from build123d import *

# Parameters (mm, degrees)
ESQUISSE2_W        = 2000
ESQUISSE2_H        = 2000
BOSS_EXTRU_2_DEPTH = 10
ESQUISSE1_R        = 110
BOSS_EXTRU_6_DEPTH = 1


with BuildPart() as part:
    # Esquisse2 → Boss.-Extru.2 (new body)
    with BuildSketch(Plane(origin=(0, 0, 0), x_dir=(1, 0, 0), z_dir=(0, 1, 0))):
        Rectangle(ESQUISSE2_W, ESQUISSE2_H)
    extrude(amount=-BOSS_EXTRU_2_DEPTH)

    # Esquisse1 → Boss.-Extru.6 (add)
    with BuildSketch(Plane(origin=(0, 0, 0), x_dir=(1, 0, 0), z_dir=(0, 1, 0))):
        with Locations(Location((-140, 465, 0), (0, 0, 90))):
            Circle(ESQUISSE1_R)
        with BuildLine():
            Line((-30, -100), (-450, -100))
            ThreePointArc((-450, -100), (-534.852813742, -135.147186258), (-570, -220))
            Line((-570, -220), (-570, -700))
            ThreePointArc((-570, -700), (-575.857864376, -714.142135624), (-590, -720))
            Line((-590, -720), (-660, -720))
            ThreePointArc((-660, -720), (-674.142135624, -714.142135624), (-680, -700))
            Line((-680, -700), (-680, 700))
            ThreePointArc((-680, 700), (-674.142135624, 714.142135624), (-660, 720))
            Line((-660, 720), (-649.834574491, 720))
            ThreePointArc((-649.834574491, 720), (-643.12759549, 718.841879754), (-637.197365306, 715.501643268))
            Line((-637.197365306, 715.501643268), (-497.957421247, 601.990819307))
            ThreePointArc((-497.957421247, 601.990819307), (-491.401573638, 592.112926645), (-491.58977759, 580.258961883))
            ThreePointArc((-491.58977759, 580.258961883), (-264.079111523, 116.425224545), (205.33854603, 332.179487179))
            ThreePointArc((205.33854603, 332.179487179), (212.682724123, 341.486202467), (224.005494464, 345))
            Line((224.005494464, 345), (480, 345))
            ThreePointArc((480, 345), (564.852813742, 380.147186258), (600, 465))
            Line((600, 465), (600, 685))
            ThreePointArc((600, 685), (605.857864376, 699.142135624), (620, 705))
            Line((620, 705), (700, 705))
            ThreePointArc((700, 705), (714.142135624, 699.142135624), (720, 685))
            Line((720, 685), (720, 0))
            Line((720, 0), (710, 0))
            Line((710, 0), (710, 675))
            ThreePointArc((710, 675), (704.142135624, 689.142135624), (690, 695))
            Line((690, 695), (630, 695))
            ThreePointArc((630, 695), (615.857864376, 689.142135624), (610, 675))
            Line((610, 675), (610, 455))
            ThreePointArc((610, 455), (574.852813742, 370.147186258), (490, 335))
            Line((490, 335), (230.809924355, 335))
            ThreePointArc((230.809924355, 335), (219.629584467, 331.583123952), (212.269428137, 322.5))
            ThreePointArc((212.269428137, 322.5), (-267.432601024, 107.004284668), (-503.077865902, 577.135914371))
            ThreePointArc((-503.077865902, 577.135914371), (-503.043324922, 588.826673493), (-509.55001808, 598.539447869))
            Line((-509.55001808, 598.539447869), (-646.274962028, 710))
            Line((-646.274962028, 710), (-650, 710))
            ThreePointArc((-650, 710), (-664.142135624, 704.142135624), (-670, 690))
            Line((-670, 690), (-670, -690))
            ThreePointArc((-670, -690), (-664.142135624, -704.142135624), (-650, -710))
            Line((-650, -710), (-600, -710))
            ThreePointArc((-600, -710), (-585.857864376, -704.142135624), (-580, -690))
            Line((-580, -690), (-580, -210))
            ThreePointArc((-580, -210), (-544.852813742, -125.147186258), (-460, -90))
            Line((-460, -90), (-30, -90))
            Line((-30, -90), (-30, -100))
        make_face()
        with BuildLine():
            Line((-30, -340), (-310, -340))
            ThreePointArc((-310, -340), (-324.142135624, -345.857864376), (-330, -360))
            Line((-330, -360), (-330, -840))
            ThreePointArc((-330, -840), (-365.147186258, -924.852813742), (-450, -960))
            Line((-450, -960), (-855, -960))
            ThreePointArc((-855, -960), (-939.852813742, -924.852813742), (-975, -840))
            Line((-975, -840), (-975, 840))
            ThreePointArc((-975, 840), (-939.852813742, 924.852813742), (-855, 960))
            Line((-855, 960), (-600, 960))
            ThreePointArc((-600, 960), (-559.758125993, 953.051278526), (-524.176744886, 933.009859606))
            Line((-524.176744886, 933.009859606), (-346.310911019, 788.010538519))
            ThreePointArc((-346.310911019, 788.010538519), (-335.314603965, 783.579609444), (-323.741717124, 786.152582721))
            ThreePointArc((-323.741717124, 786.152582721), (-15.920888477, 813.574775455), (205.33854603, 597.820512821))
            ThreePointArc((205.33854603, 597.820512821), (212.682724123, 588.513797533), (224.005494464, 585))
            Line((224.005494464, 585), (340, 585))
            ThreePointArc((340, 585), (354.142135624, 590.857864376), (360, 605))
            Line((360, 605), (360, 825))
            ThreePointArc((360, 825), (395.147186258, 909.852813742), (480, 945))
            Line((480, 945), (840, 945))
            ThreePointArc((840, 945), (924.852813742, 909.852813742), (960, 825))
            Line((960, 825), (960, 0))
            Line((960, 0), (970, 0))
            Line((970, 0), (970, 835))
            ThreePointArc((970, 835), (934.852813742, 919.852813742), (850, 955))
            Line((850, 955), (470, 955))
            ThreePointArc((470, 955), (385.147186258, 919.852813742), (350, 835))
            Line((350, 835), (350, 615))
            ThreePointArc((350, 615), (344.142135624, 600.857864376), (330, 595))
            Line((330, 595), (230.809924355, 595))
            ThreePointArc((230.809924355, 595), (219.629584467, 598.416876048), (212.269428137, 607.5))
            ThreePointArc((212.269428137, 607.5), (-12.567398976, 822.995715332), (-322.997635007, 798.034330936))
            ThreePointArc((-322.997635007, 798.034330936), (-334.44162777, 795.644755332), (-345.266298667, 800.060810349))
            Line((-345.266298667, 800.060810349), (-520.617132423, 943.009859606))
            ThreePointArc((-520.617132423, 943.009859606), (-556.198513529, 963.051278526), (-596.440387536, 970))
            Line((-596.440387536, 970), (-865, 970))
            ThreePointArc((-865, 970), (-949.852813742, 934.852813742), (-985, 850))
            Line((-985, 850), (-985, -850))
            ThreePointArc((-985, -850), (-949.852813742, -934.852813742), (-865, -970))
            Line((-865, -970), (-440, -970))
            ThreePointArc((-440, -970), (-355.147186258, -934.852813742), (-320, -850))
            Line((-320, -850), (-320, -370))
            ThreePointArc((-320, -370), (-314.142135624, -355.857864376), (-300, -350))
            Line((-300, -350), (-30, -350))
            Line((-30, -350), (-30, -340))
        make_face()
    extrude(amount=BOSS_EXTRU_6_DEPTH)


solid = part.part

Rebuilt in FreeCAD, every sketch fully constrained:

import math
import FreeCAD as App
import Part
import Sketcher
from FreeCAD import Vector

doc = App.newDocument("Part")
params = doc.addObject("Spreadsheet::Sheet", "Params")
for row, (alias, value) in enumerate([
    ("sketch1_width", "2000 mm"),
    ("pad1_length", "10 mm"),
    ("sketch2_diameter", "220 mm"),
    ("sketch2_radius", "120 mm"),
    ("sketch2_radius2", "20 mm"),
    ("sketch2_radius3", "380 mm"),
    ("sketch2_radius4", "370 mm"),
    ("pad2_length", "1 mm"),
], start=1):
    params.set(f"A{row}", alias)
    params.set(f"B{row}", "=" + value)
    params.setAlias(f"B{row}", alias)

body = doc.addObject("PartDesign::Body", "Body")

# Sketch on XZ plane
sketch1 = doc.addObject("Sketcher::SketchObject", "Sketch")
body.addObject(sketch1)
sketch1.AttachmentSupport = (doc.XZ_Plane, [""])
sketch1.MapMode = "FlatFace"
sketch1.addGeometry(Part.LineSegment(Vector(-1000, -1000, 0), Vector(-1000, 1000, 0)), False)
sketch1.addGeometry(Part.LineSegment(Vector(-1000, 1000, 0), Vector(1000, 1000, 0)), False)
sketch1.addGeometry(Part.LineSegment(Vector(1000, 1000, 0), Vector(1000, -1000, 0)), False)
sketch1.addGeometry(Part.LineSegment(Vector(1000, -1000, 0), Vector(-1000, -1000, 0)), False)
sketch1.addConstraint(Sketcher.Constraint("Coincident", 0, 2, 1, 1))
sketch1.addConstraint(Sketcher.Constraint("Coincident", 1, 2, 2, 1))
sketch1.addConstraint(Sketcher.Constraint("Coincident", 2, 2, 3, 1))
sketch1.addConstraint(Sketcher.Constraint("Coincident", 3, 2, 0, 1))
sketch1.addConstraint(Sketcher.Constraint("Vertical", 0))
sketch1.addConstraint(Sketcher.Constraint("Horizontal", 1))
sketch1.addConstraint(Sketcher.Constraint("Vertical", 2))
sketch1.addConstraint(Sketcher.Constraint("Horizontal", 3))
sketch1.addConstraint(Sketcher.Constraint("Symmetric", 0, 2, 2, 2, -1, 1))
sketch1.addConstraint(Sketcher.Constraint("Equal", 3, 0))
sketch1.addConstraint(Sketcher.Constraint("DistanceX", 1, 1, 1, 2, 2000.0))
sketch1.setExpression("Constraints[10]", "Params.sketch1_width")
pad1 = doc.addObject("PartDesign::Pad", "Pad")
body.addObject(pad1)
pad1.Profile = sketch1
pad1.setExpression("Length", "Params.pad1_length")

# Sketch on XZ plane
sketch2 = doc.addObject("Sketcher::SketchObject", "Sketch001")
body.addObject(sketch2)
sketch2.AttachmentSupport = (doc.XZ_Plane, [""])
sketch2.MapMode = "FlatFace"
sketch2.addGeometry(Part.Circle(Vector(-140, -465, 0), Vector(0, 0, 1), 110), False)
sketch2.addGeometry(Part.LineSegment(Vector(-450, 100, 0), Vector(-30, 100, 0)), False)
sketch2.addGeometry(Part.LineSegment(Vector(-30, 100, 0), Vector(-30, 90, 0)), False)
sketch2.addGeometry(Part.LineSegment(Vector(-30, 90, 0), Vector(-460, 90, 0)), False)
sketch2.addGeometry(Part.ArcOfCircle(Part.Circle(Vector(-460, 210, 0), Vector(0, 0, 1), 120), math.radians(-180), math.radians(-90)), False)
sketch2.addGeometry(Part.LineSegment(Vector(-580, 210, 0), Vector(-580, 690, 0)), False)
sketch2.addGeometry(Part.ArcOfCircle(Part.Circle(Vector(-600, 690, 0), Vector(0, 0, 1), 20), math.radians(0), math.radians(90)), False)
sketch2.addGeometry(Part.LineSegment(Vector(-600, 710, 0), Vector(-650, 710, 0)), False)
sketch2.addGeometry(Part.ArcOfCircle(Part.Circle(Vector(-650, 690, 0), Vector(0, 0, 1), 20), math.radians(90), math.radians(180)), False)
sketch2.addGeometry(Part.LineSegment(Vector(-670, 690, 0), Vector(-670, -690, 0)), False)
sketch2.addGeometry(Part.ArcOfCircle(Part.Circle(Vector(-650, -690, 0), Vector(0, 0, 1), 20), math.radians(180), math.radians(270)), False)
sketch2.addGeometry(Part.LineSegment(Vector(-650, -710, 0), Vector(-646.3, -710, 0)), False)
sketch2.addGeometry(Part.LineSegment(Vector(-646.3, -710, 0), Vector(-509.6, -598.5, 0)), False)
sketch2.addGeometry(Part.ArcOfCircle(Part.Circle(Vector(-522.2, -583, 0), Vector(0, 0, 1), 20), math.radians(-51), math.radians(17)), False)
sketch2.addGeometry(Part.ArcOfCircle(Part.Circle(Vector(-140, -465, 0), Vector(0, 0, 1), 380), math.radians(22), math.radians(197)), False)
sketch2.addGeometry(Part.ArcOfCircle(Part.Circle(Vector(230.8, -315, 0), Vector(0, 0, 1), 20), math.radians(-158), math.radians(-90)), False)
sketch2.addGeometry(Part.LineSegment(Vector(230.8, -335, 0), Vector(490, -335, 0)), False)
sketch2.addGeometry(Part.ArcOfCircle(Part.Circle(Vector(490, -455, 0), Vector(0, 0, 1), 120), math.radians(0), math.radians(90)), False)
sketch2.addGeometry(Part.LineSegment(Vector(610, -455, 0), Vector(610, -675, 0)), False)
sketch2.addGeometry(Part.ArcOfCircle(Part.Circle(Vector(630, -675, 0), Vector(0, 0, 1), 20), math.radians(180), math.radians(270)), False)
sketch2.addGeometry(Part.LineSegment(Vector(630, -695, 0), Vector(690, -695, 0)), False)
sketch2.addGeometry(Part.ArcOfCircle(Part.Circle(Vector(690, -675, 0), Vector(0, 0, 1), 20), math.radians(-90), math.radians(0)), False)
sketch2.addGeometry(Part.LineSegment(Vector(710, -675, 0), Vector(710, 0, 0)), False)
sketch2.addGeometry(Part.LineSegment(Vector(710, 0, 0), Vector(720, 0, 0)), False)
sketch2.addGeometry(Part.LineSegment(Vector(720, 0, 0), Vector(720, -685, 0)), False)
sketch2.addGeometry(Part.ArcOfCircle(Part.Circle(Vector(700, -685, 0), Vector(0, 0, 1), 20), math.radians(-90), math.radians(0)), False)
sketch2.addGeometry(Part.LineSegment(Vector(700, -705, 0), Vector(620, -705, 0)), False)
sketch2.addGeometry(Part.ArcOfCircle(Part.Circle(Vector(620, -685, 0), Vector(0, 0, 1), 20), math.radians(180), math.radians(270)), False)
sketch2.addGeometry(Part.LineSegment(Vector(600, -685, 0), Vector(600, -465, 0)), False)
sketch2.addGeometry(Part.ArcOfCircle(Part.Circle(Vector(480, -465, 0), Vector(0, 0, 1), 120), math.radians(0), math.radians(90)), False)
sketch2.addGeometry(Part.LineSegment(Vector(480, -345, 0), Vector(224, -345, 0)), False)
sketch2.addGeometry(Part.ArcOfCircle(Part.Circle(Vector(224, -325, 0), Vector(0, 0, 1), 20), math.radians(-159), math.radians(-90)), False)
sketch2.addGeometry(Part.ArcOfCircle(Part.Circle(Vector(-140, -465, 0), Vector(0, 0, 1), 370), math.radians(21), math.radians(198)), False)
sketch2.addGeometry(Part.ArcOfCircle(Part.Circle(Vector(-510.6, -586.5, 0), Vector(0, 0, 1), 20), math.radians(-51), math.radians(18)), False)
sketch2.addGeometry(Part.LineSegment(Vector(-498, -602, 0), Vector(-637.2, -715.5, 0)), False)
sketch2.addGeometry(Part.ArcOfCircle(Part.Circle(Vector(-649.8, -700, 0), Vector(0, 0, 1), 20), math.radians(-90), math.radians(-51)), False)
sketch2.addGeometry(Part.LineSegment(Vector(-649.8, -720, 0), Vector(-660, -720, 0)), False)
sketch2.addGeometry(Part.ArcOfCircle(Part.Circle(Vector(-660, -700, 0), Vector(0, 0, 1), 20), math.radians(180), math.radians(270)), False)
sketch2.addGeometry(Part.LineSegment(Vector(-680, -700, 0), Vector(-680, 700, 0)), False)
sketch2.addGeometry(Part.ArcOfCircle(Part.Circle(Vector(-660, 700, 0), Vector(0, 0, 1), 20), math.radians(90), math.radians(180)), False)
sketch2.addGeometry(Part.LineSegment(Vector(-660, 720, 0), Vector(-590, 720, 0)), False)
sketch2.addGeometry(Part.ArcOfCircle(Part.Circle(Vector(-590, 700, 0), Vector(0, 0, 1), 20), math.radians(0), math.radians(90)), False)
sketch2.addGeometry(Part.LineSegment(Vector(-570, 700, 0), Vector(-570, 220, 0)), False)
sketch2.addGeometry(Part.ArcOfCircle(Part.Circle(Vector(-450, 220, 0), Vector(0, 0, 1), 120), math.radians(-180), math.radians(-90)), False)
sketch2.addGeometry(Part.LineSegment(Vector(-30, 340, 0), Vector(-310, 340, 0)), False)
sketch2.addGeometry(Part.ArcOfCircle(Part.Circle(Vector(-310, 360, 0), Vector(0, 0, 1), 20), math.radians(180), math.radians(270)), False)
sketch2.addGeometry(Part.LineSegment(Vector(-330, 360, 0), Vector(-330, 840, 0)), False)
sketch2.addGeometry(Part.ArcOfCircle(Part.Circle(Vector(-450, 840, 0), Vector(0, 0, 1), 120), math.radians(0), math.radians(90)), False)
sketch2.addGeometry(Part.LineSegment(Vector(-450, 960, 0), Vector(-855, 960, 0)), False)
sketch2.addGeometry(Part.ArcOfCircle(Part.Circle(Vector(-855, 840, 0), Vector(0, 0, 1), 120), math.radians(90), math.radians(180)), False)
sketch2.addGeometry(Part.LineSegment(Vector(-975, 840, 0), Vector(-975, -840, 0)), False)
sketch2.addGeometry(Part.ArcOfCircle(Part.Circle(Vector(-855, -840, 0), Vector(0, 0, 1), 120), math.radians(-180), math.radians(-90)), False)
sketch2.addGeometry(Part.LineSegment(Vector(-855, -960, 0), Vector(-600, -960, 0)), False)
sketch2.addGeometry(Part.ArcOfCircle(Part.Circle(Vector(-600, -840, 0), Vector(0, 0, 1), 120), math.radians(-90), math.radians(-51)), False)
sketch2.addGeometry(Part.LineSegment(Vector(-524.2, -933, 0), Vector(-346.3, -788, 0)), False)
sketch2.addGeometry(Part.ArcOfCircle(Part.Circle(Vector(-333.7, -803.5, 0), Vector(0, 0, 1), 20), math.radians(60), math.radians(129)), False)
sketch2.addGeometry(Part.ArcOfCircle(Part.Circle(Vector(-140, -465, 0), Vector(0, 0, 1), 370), math.radians(-120), math.radians(-21)), False)
sketch2.addGeometry(Part.ArcOfCircle(Part.Circle(Vector(224, -605, 0), Vector(0, 0, 1), 20), math.radians(90), math.radians(159)), False)
sketch2.addGeometry(Part.LineSegment(Vector(224, -585, 0), Vector(340, -585, 0)), False)
sketch2.addGeometry(Part.ArcOfCircle(Part.Circle(Vector(340, -605, 0), Vector(0, 0, 1), 20), math.radians(0), math.radians(90)), False)
sketch2.addGeometry(Part.LineSegment(Vector(360, -605, 0), Vector(360, -825, 0)), False)
sketch2.addGeometry(Part.ArcOfCircle(Part.Circle(Vector(480, -825, 0), Vector(0, 0, 1), 120), math.radians(-180), math.radians(-90)), False)
sketch2.addGeometry(Part.LineSegment(Vector(480, -945, 0), Vector(840, -945, 0)), False)
sketch2.addGeometry(Part.ArcOfCircle(Part.Circle(Vector(840, -825, 0), Vector(0, 0, 1), 120), math.radians(-90), math.radians(0)), False)
sketch2.addGeometry(Part.LineSegment(Vector(960, -825, 0), Vector(960, 0, 0)), False)
sketch2.addGeometry(Part.LineSegment(Vector(960, 0, 0), Vector(970, 0, 0)), False)
sketch2.addGeometry(Part.LineSegment(Vector(970, 0, 0), Vector(970, -835, 0)), False)
sketch2.addGeometry(Part.ArcOfCircle(Part.Circle(Vector(850, -835, 0), Vector(0, 0, 1), 120), math.radians(-90), math.radians(0)), False)
sketch2.addGeometry(Part.LineSegment(Vector(850, -955, 0), Vector(470, -955, 0)), False)
sketch2.addGeometry(Part.ArcOfCircle(Part.Circle(Vector(470, -835, 0), Vector(0, 0, 1), 120), math.radians(-180), math.radians(-90)), False)
sketch2.addGeometry(Part.LineSegment(Vector(350, -835, 0), Vector(350, -615, 0)), False)
sketch2.addGeometry(Part.ArcOfCircle(Part.Circle(Vector(330, -615, 0), Vector(0, 0, 1), 20), math.radians(0), math.radians(90)), False)
sketch2.addGeometry(Part.LineSegment(Vector(330, -595, 0), Vector(230.8, -595, 0)), False)
sketch2.addGeometry(Part.ArcOfCircle(Part.Circle(Vector(230.8, -615, 0), Vector(0, 0, 1), 20), math.radians(90), math.radians(158)), False)
sketch2.addGeometry(Part.ArcOfCircle(Part.Circle(Vector(-140, -465, 0), Vector(0, 0, 1), 380), math.radians(-119), math.radians(-22)), False)
sketch2.addGeometry(Part.ArcOfCircle(Part.Circle(Vector(-332.6, -815.6, 0), Vector(0, 0, 1), 20), math.radians(61), math.radians(129)), False)
sketch2.addGeometry(Part.LineSegment(Vector(-345.3, -800.1, 0), Vector(-520.6, -943, 0)), False)
sketch2.addGeometry(Part.ArcOfCircle(Part.Circle(Vector(-596.4, -850, 0), Vector(0, 0, 1), 120), math.radians(-90), math.radians(-51)), False)
sketch2.addGeometry(Part.LineSegment(Vector(-596.4, -970, 0), Vector(-865, -970, 0)), False)
sketch2.addGeometry(Part.ArcOfCircle(Part.Circle(Vector(-865, -850, 0), Vector(0, 0, 1), 120), math.radians(-180), math.radians(-90)), False)
sketch2.addGeometry(Part.LineSegment(Vector(-985, -850, 0), Vector(-985, 850, 0)), False)
sketch2.addGeometry(Part.ArcOfCircle(Part.Circle(Vector(-865, 850, 0), Vector(0, 0, 1), 120), math.radians(90), math.radians(180)), False)
sketch2.addGeometry(Part.LineSegment(Vector(-865, 970, 0), Vector(-440, 970, 0)), False)
sketch2.addGeometry(Part.ArcOfCircle(Part.Circle(Vector(-440, 850, 0), Vector(0, 0, 1), 120), math.radians(0), math.radians(90)), False)
sketch2.addGeometry(Part.LineSegment(Vector(-320, 850, 0), Vector(-320, 370, 0)), False)
sketch2.addGeometry(Part.ArcOfCircle(Part.Circle(Vector(-300, 370, 0), Vector(0, 0, 1), 20), math.radians(180), math.radians(270)), False)
sketch2.addGeometry(Part.LineSegment(Vector(-300, 350, 0), Vector(-30, 350, 0)), False)
sketch2.addGeometry(Part.LineSegment(Vector(-30, 350, 0), Vector(-30, 340, 0)), False)
sketch2.addConstraint(Sketcher.Constraint("Coincident", 1, 2, 2, 1))
sketch2.addConstraint(Sketcher.Constraint("Coincident", 2, 2, 3, 1))
sketch2.addConstraint(Sketcher.Constraint("Tangent", 3, 2, 4, 2))
sketch2.addConstraint(Sketcher.Constraint("Tangent", 4, 1, 5, 1))
sketch2.addConstraint(Sketcher.Constraint("Tangent", 5, 2, 6, 1))
sketch2.addConstraint(Sketcher.Constraint("Tangent", 6, 2, 7, 1))
sketch2.addConstraint(Sketcher.Constraint("Tangent", 7, 2, 8, 1))
sketch2.addConstraint(Sketcher.Constraint("Tangent", 8, 2, 9, 1))
sketch2.addConstraint(Sketcher.Constraint("Tangent", 9, 2, 10, 1))
sketch2.addConstraint(Sketcher.Constraint("Tangent", 10, 2, 11, 1))
sketch2.addConstraint(Sketcher.Constraint("Coincident", 11, 2, 12, 1))
sketch2.addConstraint(Sketcher.Constraint("Tangent", 12, 2, 13, 1))
sketch2.addConstraint(Sketcher.Constraint("Tangent", 13, 2, 14, 2))
sketch2.addConstraint(Sketcher.Constraint("Tangent", 14, 1, 15, 1))
sketch2.addConstraint(Sketcher.Constraint("Tangent", 15, 2, 16, 1))
sketch2.addConstraint(Sketcher.Constraint("Tangent", 16, 2, 17, 2))
sketch2.addConstraint(Sketcher.Constraint("Tangent", 17, 1, 18, 1))
sketch2.addConstraint(Sketcher.Constraint("Tangent", 18, 2, 19, 1))
sketch2.addConstraint(Sketcher.Constraint("Tangent", 19, 2, 20, 1))
sketch2.addConstraint(Sketcher.Constraint("Tangent", 20, 2, 21, 1))
sketch2.addConstraint(Sketcher.Constraint("Tangent", 21, 2, 22, 1))
sketch2.addConstraint(Sketcher.Constraint("Coincident", 22, 2, 23, 1))
sketch2.addConstraint(Sketcher.Constraint("Coincident", 23, 2, 24, 1))
sketch2.addConstraint(Sketcher.Constraint("Tangent", 24, 2, 25, 2))
sketch2.addConstraint(Sketcher.Constraint("Tangent", 25, 1, 26, 1))
sketch2.addConstraint(Sketcher.Constraint("Tangent", 26, 2, 27, 2))
sketch2.addConstraint(Sketcher.Constraint("Tangent", 27, 1, 28, 1))
sketch2.addConstraint(Sketcher.Constraint("Tangent", 28, 2, 29, 1))
sketch2.addConstraint(Sketcher.Constraint("Tangent", 29, 2, 30, 1))
sketch2.addConstraint(Sketcher.Constraint("Tangent", 30, 2, 31, 2))
sketch2.addConstraint(Sketcher.Constraint("Tangent", 31, 1, 32, 1))
sketch2.addConstraint(Sketcher.Constraint("Tangent", 32, 2, 33, 2))
sketch2.addConstraint(Sketcher.Constraint("Tangent", 33, 1, 34, 1))
sketch2.addConstraint(Sketcher.Constraint("Tangent", 34, 2, 35, 2))
sketch2.addConstraint(Sketcher.Constraint("Tangent", 35, 1, 36, 1))
sketch2.addConstraint(Sketcher.Constraint("Tangent", 36, 2, 37, 2))
sketch2.addConstraint(Sketcher.Constraint("Tangent", 37, 1, 38, 1))
sketch2.addConstraint(Sketcher.Constraint("Tangent", 38, 2, 39, 2))
sketch2.addConstraint(Sketcher.Constraint("Tangent", 39, 1, 40, 1))
sketch2.addConstraint(Sketcher.Constraint("Tangent", 40, 2, 41, 2))
sketch2.addConstraint(Sketcher.Constraint("Tangent", 41, 1, 42, 1))
sketch2.addConstraint(Sketcher.Constraint("Tangent", 42, 2, 43, 1))
sketch2.addConstraint(Sketcher.Constraint("Tangent", 43, 2, 1, 1))
sketch2.addConstraint(Sketcher.Constraint("Tangent", 44, 2, 45, 2))
sketch2.addConstraint(Sketcher.Constraint("Tangent", 45, 1, 46, 1))
sketch2.addConstraint(Sketcher.Constraint("Tangent", 46, 2, 47, 1))
sketch2.addConstraint(Sketcher.Constraint("Tangent", 47, 2, 48, 1))
sketch2.addConstraint(Sketcher.Constraint("Tangent", 48, 2, 49, 1))
sketch2.addConstraint(Sketcher.Constraint("Tangent", 49, 2, 50, 1))
sketch2.addConstraint(Sketcher.Constraint("Tangent", 50, 2, 51, 1))
sketch2.addConstraint(Sketcher.Constraint("Tangent", 51, 2, 52, 1))
sketch2.addConstraint(Sketcher.Constraint("Tangent", 52, 2, 53, 1))
sketch2.addConstraint(Sketcher.Constraint("Tangent", 53, 2, 54, 1))
sketch2.addConstraint(Sketcher.Constraint("Tangent", 54, 2, 55, 2))
sketch2.addConstraint(Sketcher.Constraint("Tangent", 55, 1, 56, 1))
sketch2.addConstraint(Sketcher.Constraint("Tangent", 56, 2, 57, 2))
sketch2.addConstraint(Sketcher.Constraint("Tangent", 57, 1, 58, 1))
sketch2.addConstraint(Sketcher.Constraint("Tangent", 58, 2, 59, 2))
sketch2.addConstraint(Sketcher.Constraint("Tangent", 59, 1, 60, 1))
sketch2.addConstraint(Sketcher.Constraint("Tangent", 60, 2, 61, 1))
sketch2.addConstraint(Sketcher.Constraint("Tangent", 61, 2, 62, 1))
sketch2.addConstraint(Sketcher.Constraint("Tangent", 62, 2, 63, 1))
sketch2.addConstraint(Sketcher.Constraint("Tangent", 63, 2, 64, 1))
sketch2.addConstraint(Sketcher.Constraint("Coincident", 64, 2, 65, 1))
sketch2.addConstraint(Sketcher.Constraint("Coincident", 65, 2, 66, 1))
sketch2.addConstraint(Sketcher.Constraint("Tangent", 66, 2, 67, 2))
sketch2.addConstraint(Sketcher.Constraint("Tangent", 67, 1, 68, 1))
sketch2.addConstraint(Sketcher.Constraint("Tangent", 68, 2, 69, 2))
sketch2.addConstraint(Sketcher.Constraint("Tangent", 69, 1, 70, 1))
sketch2.addConstraint(Sketcher.Constraint("Tangent", 70, 2, 71, 1))
sketch2.addConstraint(Sketcher.Constraint("Tangent", 71, 2, 72, 1))
sketch2.addConstraint(Sketcher.Constraint("Tangent", 72, 2, 73, 1))
sketch2.addConstraint(Sketcher.Constraint("Tangent", 73, 2, 74, 2))
sketch2.addConstraint(Sketcher.Constraint("Tangent", 74, 1, 75, 1))
sketch2.addConstraint(Sketcher.Constraint("Tangent", 75, 2, 76, 1))
sketch2.addConstraint(Sketcher.Constraint("Tangent", 76, 2, 77, 2))
sketch2.addConstraint(Sketcher.Constraint("Tangent", 77, 1, 78, 1))
sketch2.addConstraint(Sketcher.Constraint("Tangent", 78, 2, 79, 2))
sketch2.addConstraint(Sketcher.Constraint("Tangent", 79, 1, 80, 1))
sketch2.addConstraint(Sketcher.Constraint("Tangent", 80, 2, 81, 2))
sketch2.addConstraint(Sketcher.Constraint("Tangent", 81, 1, 82, 1))
sketch2.addConstraint(Sketcher.Constraint("Tangent", 82, 2, 83, 2))
sketch2.addConstraint(Sketcher.Constraint("Tangent", 83, 1, 84, 1))
sketch2.addConstraint(Sketcher.Constraint("Tangent", 84, 2, 85, 1))
sketch2.addConstraint(Sketcher.Constraint("Tangent", 85, 2, 86, 1))
sketch2.addConstraint(Sketcher.Constraint("Coincident", 86, 2, 87, 1))
sketch2.addConstraint(Sketcher.Constraint("Coincident", 87, 2, 44, 1))
sketch2.addConstraint(Sketcher.Constraint("Horizontal", 1))
sketch2.addConstraint(Sketcher.Constraint("Vertical", 2))
sketch2.addConstraint(Sketcher.Constraint("Horizontal", 3))
sketch2.addConstraint(Sketcher.Constraint("Vertical", 5))
sketch2.addConstraint(Sketcher.Constraint("Horizontal", 7))
sketch2.addConstraint(Sketcher.Constraint("Vertical", 9))
sketch2.addConstraint(Sketcher.Constraint("Horizontal", 11))
sketch2.addConstraint(Sketcher.Constraint("Horizontal", 16))
sketch2.addConstraint(Sketcher.Constraint("Vertical", 18))
sketch2.addConstraint(Sketcher.Constraint("Horizontal", 20))
sketch2.addConstraint(Sketcher.Constraint("Vertical", 22))
sketch2.addConstraint(Sketcher.Constraint("Horizontal", 23))
sketch2.addConstraint(Sketcher.Constraint("Vertical", 24))
sketch2.addConstraint(Sketcher.Constraint("Horizontal", 26))
sketch2.addConstraint(Sketcher.Constraint("Vertical", 28))
sketch2.addConstraint(Sketcher.Constraint("Horizontal", 30))
sketch2.addConstraint(Sketcher.Constraint("Horizontal", 36))
sketch2.addConstraint(Sketcher.Constraint("Vertical", 38))
sketch2.addConstraint(Sketcher.Constraint("Horizontal", 40))
sketch2.addConstraint(Sketcher.Constraint("Vertical", 42))
sketch2.addConstraint(Sketcher.Constraint("Horizontal", 44))
sketch2.addConstraint(Sketcher.Constraint("Vertical", 46))
sketch2.addConstraint(Sketcher.Constraint("Horizontal", 48))
sketch2.addConstraint(Sketcher.Constraint("Vertical", 50))
sketch2.addConstraint(Sketcher.Constraint("Horizontal", 52))
sketch2.addConstraint(Sketcher.Constraint("Horizontal", 58))
sketch2.addConstraint(Sketcher.Constraint("Vertical", 60))
sketch2.addConstraint(Sketcher.Constraint("Horizontal", 62))
sketch2.addConstraint(Sketcher.Constraint("Vertical", 64))
sketch2.addConstraint(Sketcher.Constraint("Horizontal", 65))
sketch2.addConstraint(Sketcher.Constraint("Vertical", 66))
sketch2.addConstraint(Sketcher.Constraint("Horizontal", 68))
sketch2.addConstraint(Sketcher.Constraint("Vertical", 70))
sketch2.addConstraint(Sketcher.Constraint("Horizontal", 72))
sketch2.addConstraint(Sketcher.Constraint("Horizontal", 78))
sketch2.addConstraint(Sketcher.Constraint("Vertical", 80))
sketch2.addConstraint(Sketcher.Constraint("Horizontal", 82))
sketch2.addConstraint(Sketcher.Constraint("Vertical", 84))
sketch2.addConstraint(Sketcher.Constraint("Horizontal", 86))
sketch2.addConstraint(Sketcher.Constraint("Vertical", 87))
sketch2.addConstraint(Sketcher.Constraint("Coincident", 14, 3, 0, 3))
sketch2.addConstraint(Sketcher.Constraint("Coincident", 32, 3, 0, 3))
sketch2.addConstraint(Sketcher.Constraint("Coincident", 56, 3, 0, 3))
sketch2.addConstraint(Sketcher.Constraint("Coincident", 74, 3, 0, 3))
sketch2.addConstraint(Sketcher.Constraint("Equal", 6, 8))
sketch2.addConstraint(Sketcher.Constraint("Equal", 8, 10))
sketch2.addConstraint(Sketcher.Constraint("Equal", 10, 13))
sketch2.addConstraint(Sketcher.Constraint("Equal", 13, 15))
sketch2.addConstraint(Sketcher.Constraint("Equal", 4, 17))
sketch2.addConstraint(Sketcher.Constraint("Equal", 15, 19))
sketch2.addConstraint(Sketcher.Constraint("Equal", 19, 21))
sketch2.addConstraint(Sketcher.Constraint("Equal", 21, 25))
sketch2.addConstraint(Sketcher.Constraint("Equal", 25, 27))
sketch2.addConstraint(Sketcher.Constraint("Equal", 17, 29))
sketch2.addConstraint(Sketcher.Constraint("Equal", 27, 31))
sketch2.addConstraint(Sketcher.Constraint("Equal", 31, 33))
sketch2.addConstraint(Sketcher.Constraint("Equal", 33, 35))
sketch2.addConstraint(Sketcher.Constraint("Equal", 35, 37))
sketch2.addConstraint(Sketcher.Constraint("Equal", 37, 39))
sketch2.addConstraint(Sketcher.Constraint("Equal", 39, 41))
sketch2.addConstraint(Sketcher.Constraint("Equal", 29, 43))
sketch2.addConstraint(Sketcher.Constraint("Equal", 41, 45))
sketch2.addConstraint(Sketcher.Constraint("Equal", 43, 47))
sketch2.addConstraint(Sketcher.Constraint("Equal", 47, 49))
sketch2.addConstraint(Sketcher.Constraint("Equal", 49, 51))
sketch2.addConstraint(Sketcher.Constraint("Equal", 51, 53))
sketch2.addConstraint(Sketcher.Constraint("Equal", 45, 55))
sketch2.addConstraint(Sketcher.Constraint("Equal", 32, 56))
sketch2.addConstraint(Sketcher.Constraint("Equal", 55, 57))
sketch2.addConstraint(Sketcher.Constraint("Equal", 57, 59))
sketch2.addConstraint(Sketcher.Constraint("Equal", 53, 61))
sketch2.addConstraint(Sketcher.Constraint("Equal", 61, 63))
sketch2.addConstraint(Sketcher.Constraint("Equal", 63, 67))
sketch2.addConstraint(Sketcher.Constraint("Equal", 67, 69))
sketch2.addConstraint(Sketcher.Constraint("Equal", 59, 71))
sketch2.addConstraint(Sketcher.Constraint("Equal", 71, 73))
sketch2.addConstraint(Sketcher.Constraint("Equal", 14, 74))
sketch2.addConstraint(Sketcher.Constraint("Equal", 73, 75))
sketch2.addConstraint(Sketcher.Constraint("Equal", 69, 77))
sketch2.addConstraint(Sketcher.Constraint("Equal", 77, 79))
sketch2.addConstraint(Sketcher.Constraint("Equal", 79, 81))
sketch2.addConstraint(Sketcher.Constraint("Equal", 81, 83))
sketch2.addConstraint(Sketcher.Constraint("Equal", 75, 85))
sketch2.addConstraint(Sketcher.Constraint("PointOnObject", 22, 2, -1))
sketch2.addConstraint(Sketcher.Constraint("PointOnObject", 64, 2, -1))
sketch2.addConstraint(Sketcher.Constraint("Parallel", 12, 34))
sketch2.addConstraint(Sketcher.Constraint("Parallel", 34, 54))
sketch2.addConstraint(Sketcher.Constraint("Parallel", 54, 76))
sketch2.addConstraint(Sketcher.Constraint("Horizontal", 14, 3, 29, 3))
sketch2.addConstraint(Sketcher.Constraint("Vertical", 43, 3, 47, 3))
sketch2.addConstraint(Sketcher.Constraint("Vertical", 6, 3, 53, 3))
sketch2.addConstraint(Sketcher.Constraint("Vertical", 31, 3, 57, 3))
sketch2.addConstraint(Sketcher.Constraint("Vertical", 29, 3, 61, 3))
sketch2.addConstraint(Sketcher.Constraint("Vertical", 15, 3, 73, 3))
sketch2.addConstraint(Sketcher.Constraint("Vertical", 2, 2, 86, 2))
sketch2.addConstraint(Sketcher.Constraint("Equal", 23, 65))
sketch2.addConstraint(Sketcher.Constraint("Equal", 65, 2))
sketch2.addConstraint(Sketcher.Constraint("Equal", 18, 28))
sketch2.addConstraint(Sketcher.Constraint("Equal", 5, 42))
sketch2.addConstraint(Sketcher.Constraint("Equal", 42, 46))
sketch2.addConstraint(Sketcher.Constraint("Equal", 28, 60))
sketch2.addConstraint(Sketcher.Constraint("Equal", 60, 70))
sketch2.addConstraint(Sketcher.Constraint("Equal", 46, 84))
sketch2.addConstraint(Sketcher.Constraint("Equal", 2, 87))
sketch2.addConstraint(Sketcher.Constraint("Diameter", 0, 220.0))
sketch2.addConstraint(Sketcher.Constraint("Radius", 4, 120.0))
sketch2.addConstraint(Sketcher.Constraint("Radius", 6, 20.0))
sketch2.addConstraint(Sketcher.Constraint("Radius", 14, 380.0))
sketch2.addConstraint(Sketcher.Constraint("Radius", 32, 370.0))
sketch2.addConstraint(Sketcher.Constraint("DistanceX", 1, 1, 1, 2, 420.0))
sketch2.addConstraint(Sketcher.Constraint("DistanceX", 3, 2, 3, 1, 430.0))
sketch2.addConstraint(Sketcher.Constraint("DistanceX", 7, 2, 7, 1, 50.0))
sketch2.addConstraint(Sketcher.Constraint("DistanceX", 20, 1, 20, 2, 60.0))
sketch2.addConstraint(Sketcher.Constraint("DistanceX", 23, 1, 23, 2, 10.0))
sketch2.addConstraint(Sketcher.Constraint("DistanceX", 26, 2, 26, 1, 80.0))
sketch2.addConstraint(Sketcher.Constraint("DistanceX", 40, 1, 40, 2, 70.0))
sketch2.addConstraint(Sketcher.Constraint("DistanceX", 48, 2, 48, 1, 405.0))
sketch2.addConstraint(Sketcher.Constraint("DistanceX", 62, 1, 62, 2, 360.0))
sketch2.addConstraint(Sketcher.Constraint("DistanceX", 68, 2, 68, 1, 380.0))
sketch2.addConstraint(Sketcher.Constraint("DistanceX", 82, 1, 82, 2, 425.0))
sketch2.addConstraint(Sketcher.Constraint("DistanceX", 86, 1, 86, 2, 270.0))
sketch2.addConstraint(Sketcher.Constraint("DistanceY", 5, 1, 5, 2, 480.0))
sketch2.addConstraint(Sketcher.Constraint("DistanceY", 9, 2, 9, 1, 1380.0))
sketch2.addConstraint(Sketcher.Constraint("DistanceY", 18, 2, 18, 1, 220.0))
sketch2.addConstraint(Sketcher.Constraint("DistanceY", 22, 1, 22, 2, 675.0))
sketch2.addConstraint(Sketcher.Constraint("DistanceY", 24, 2, 24, 1, 685.0))
sketch2.addConstraint(Sketcher.Constraint("DistanceY", 38, 1, 38, 2, 1400.0))
sketch2.addConstraint(Sketcher.Constraint("DistanceY", 50, 2, 50, 1, 1680.0))
sketch2.addConstraint(Sketcher.Constraint("DistanceY", 80, 1, 80, 2, 1700.0))
sketch2.addConstraint(Sketcher.Constraint("DistanceX", 0, 3, -1, 1, 140.0))
sketch2.addConstraint(Sketcher.Constraint("DistanceX", 4, 3, -1, 1, 460.0))
sketch2.addConstraint(Sketcher.Constraint("DistanceY", -1, 1, 4, 3, 210.0))
sketch2.addConstraint(Sketcher.Constraint("DistanceX", -1, 1, 17, 3, 490.0))
sketch2.addConstraint(Sketcher.Constraint("DistanceY", -1, 1, 45, 3, 360.0))
sketch2.addConstraint(Sketcher.Constraint("Distance", 34, 179.645398))
sketch2.addConstraint(Sketcher.Constraint("DistanceX", 55, 3, -1, 1, 333.673702))
sketch2.addConstraint(Sketcher.Constraint("DistanceX", 75, 2, -1, 1, 345.266299))
sketch2.addConstraint(Sketcher.Constraint("Distance", 12, 176.400581))
sketch2.setExpression("Constraints[191]", "Params.sketch2_diameter")
sketch2.setExpression("Constraints[192]", "Params.sketch2_radius")
sketch2.setExpression("Constraints[193]", "Params.sketch2_radius2")
sketch2.setExpression("Constraints[194]", "Params.sketch2_radius3")
sketch2.setExpression("Constraints[195]", "Params.sketch2_radius4")
pad2 = doc.addObject("PartDesign::Pad", "Pad001")
body.addObject(pad2)
pad2.Profile = sketch2
pad2.setExpression("Length", "Params.pad2_length")
pad2.Reversed = True

doc.recompute()
